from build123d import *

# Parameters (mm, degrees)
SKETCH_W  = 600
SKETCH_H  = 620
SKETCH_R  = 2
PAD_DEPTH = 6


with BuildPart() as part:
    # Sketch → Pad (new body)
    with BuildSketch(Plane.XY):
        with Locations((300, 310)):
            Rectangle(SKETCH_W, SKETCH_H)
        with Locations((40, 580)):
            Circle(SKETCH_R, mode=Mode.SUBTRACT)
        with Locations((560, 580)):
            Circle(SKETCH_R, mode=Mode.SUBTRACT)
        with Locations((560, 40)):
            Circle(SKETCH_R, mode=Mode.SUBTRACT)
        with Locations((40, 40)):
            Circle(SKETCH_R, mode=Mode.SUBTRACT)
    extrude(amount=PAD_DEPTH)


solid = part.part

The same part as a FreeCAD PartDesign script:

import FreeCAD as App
import Part
import Sketcher

doc = App.newDocument("Part")
body = doc.addObject("PartDesign::Body", "Body")

sketch1 = doc.addObject("Sketcher::SketchObject", "Sketch")
body.addObject(sketch1)
sketch1.AttachmentSupport = (doc.XY_Plane, [""])
sketch1.MapMode = "FlatFace"
sketch1.addGeometry([
    Part.LineSegment(App.Vector(0, 620, 0), App.Vector(0, 0, 0)),
    Part.LineSegment(App.Vector(0, 0, 0), App.Vector(600, 0, 0)),
    Part.LineSegment(App.Vector(600, 0, 0), App.Vector(600, 620, 0)),
    Part.LineSegment(App.Vector(600, 620, 0), App.Vector(0, 620, 0)),
    Part.Circle(App.Vector(40, 40, 0), App.Vector(0, 0, 1), 2),
    Part.Circle(App.Vector(560, 40, 0), App.Vector(0, 0, 1), 2),
    Part.Circle(App.Vector(40, 580, 0), App.Vector(0, 0, 1), 2),
    Part.Circle(App.Vector(560, 580, 0), App.Vector(0, 0, 1), 2),
], False)
sketch1.addConstraint([
    Sketcher.Constraint("Coincident", 0, 2, 1, 1),
    Sketcher.Constraint("Coincident", 1, 2, 2, 1),
    Sketcher.Constraint("Coincident", 2, 2, 3, 1),
    Sketcher.Constraint("Coincident", 3, 2, 0, 1),
    Sketcher.Constraint("Vertical", 0),
    Sketcher.Constraint("Horizontal", 1),
    Sketcher.Constraint("Vertical", 2),
    Sketcher.Constraint("Horizontal", 3),
    Sketcher.Constraint("Coincident", 0, 2, -1, 1),
    Sketcher.Constraint("Equal", 4, 5),
    Sketcher.Constraint("Equal", 5, 6),
    Sketcher.Constraint("Equal", 6, 7),
    Sketcher.Constraint("Horizontal", 4, 3, 5, 3),
    Sketcher.Constraint("Horizontal", 6, 3, 7, 3),
    Sketcher.Constraint("Vertical", 4, 3, 6, 3),
    Sketcher.Constraint("Vertical", 5, 3, 7, 3),
    Sketcher.Constraint("Diameter", 4, 4.0),
    Sketcher.Constraint("DistanceX", 1, 1, 1, 2, 600.0),
    Sketcher.Constraint("DistanceY", 0, 2, 0, 1, 620.0),
    Sketcher.Constraint("DistanceX", -1, 1, 4, 3, 40.0),
    Sketcher.Constraint("DistanceY", -1, 1, 4, 3, 40.0),
    Sketcher.Constraint("DistanceX", -1, 1, 5, 3, 560.0),
    Sketcher.Constraint("DistanceY", -1, 1, 6, 3, 580.0),
])
pad1 = doc.addObject("PartDesign::Pad", "Pad")
body.addObject(pad1)
pad1.Profile = sketch1
pad1.Length = 6

doc.recompute()
